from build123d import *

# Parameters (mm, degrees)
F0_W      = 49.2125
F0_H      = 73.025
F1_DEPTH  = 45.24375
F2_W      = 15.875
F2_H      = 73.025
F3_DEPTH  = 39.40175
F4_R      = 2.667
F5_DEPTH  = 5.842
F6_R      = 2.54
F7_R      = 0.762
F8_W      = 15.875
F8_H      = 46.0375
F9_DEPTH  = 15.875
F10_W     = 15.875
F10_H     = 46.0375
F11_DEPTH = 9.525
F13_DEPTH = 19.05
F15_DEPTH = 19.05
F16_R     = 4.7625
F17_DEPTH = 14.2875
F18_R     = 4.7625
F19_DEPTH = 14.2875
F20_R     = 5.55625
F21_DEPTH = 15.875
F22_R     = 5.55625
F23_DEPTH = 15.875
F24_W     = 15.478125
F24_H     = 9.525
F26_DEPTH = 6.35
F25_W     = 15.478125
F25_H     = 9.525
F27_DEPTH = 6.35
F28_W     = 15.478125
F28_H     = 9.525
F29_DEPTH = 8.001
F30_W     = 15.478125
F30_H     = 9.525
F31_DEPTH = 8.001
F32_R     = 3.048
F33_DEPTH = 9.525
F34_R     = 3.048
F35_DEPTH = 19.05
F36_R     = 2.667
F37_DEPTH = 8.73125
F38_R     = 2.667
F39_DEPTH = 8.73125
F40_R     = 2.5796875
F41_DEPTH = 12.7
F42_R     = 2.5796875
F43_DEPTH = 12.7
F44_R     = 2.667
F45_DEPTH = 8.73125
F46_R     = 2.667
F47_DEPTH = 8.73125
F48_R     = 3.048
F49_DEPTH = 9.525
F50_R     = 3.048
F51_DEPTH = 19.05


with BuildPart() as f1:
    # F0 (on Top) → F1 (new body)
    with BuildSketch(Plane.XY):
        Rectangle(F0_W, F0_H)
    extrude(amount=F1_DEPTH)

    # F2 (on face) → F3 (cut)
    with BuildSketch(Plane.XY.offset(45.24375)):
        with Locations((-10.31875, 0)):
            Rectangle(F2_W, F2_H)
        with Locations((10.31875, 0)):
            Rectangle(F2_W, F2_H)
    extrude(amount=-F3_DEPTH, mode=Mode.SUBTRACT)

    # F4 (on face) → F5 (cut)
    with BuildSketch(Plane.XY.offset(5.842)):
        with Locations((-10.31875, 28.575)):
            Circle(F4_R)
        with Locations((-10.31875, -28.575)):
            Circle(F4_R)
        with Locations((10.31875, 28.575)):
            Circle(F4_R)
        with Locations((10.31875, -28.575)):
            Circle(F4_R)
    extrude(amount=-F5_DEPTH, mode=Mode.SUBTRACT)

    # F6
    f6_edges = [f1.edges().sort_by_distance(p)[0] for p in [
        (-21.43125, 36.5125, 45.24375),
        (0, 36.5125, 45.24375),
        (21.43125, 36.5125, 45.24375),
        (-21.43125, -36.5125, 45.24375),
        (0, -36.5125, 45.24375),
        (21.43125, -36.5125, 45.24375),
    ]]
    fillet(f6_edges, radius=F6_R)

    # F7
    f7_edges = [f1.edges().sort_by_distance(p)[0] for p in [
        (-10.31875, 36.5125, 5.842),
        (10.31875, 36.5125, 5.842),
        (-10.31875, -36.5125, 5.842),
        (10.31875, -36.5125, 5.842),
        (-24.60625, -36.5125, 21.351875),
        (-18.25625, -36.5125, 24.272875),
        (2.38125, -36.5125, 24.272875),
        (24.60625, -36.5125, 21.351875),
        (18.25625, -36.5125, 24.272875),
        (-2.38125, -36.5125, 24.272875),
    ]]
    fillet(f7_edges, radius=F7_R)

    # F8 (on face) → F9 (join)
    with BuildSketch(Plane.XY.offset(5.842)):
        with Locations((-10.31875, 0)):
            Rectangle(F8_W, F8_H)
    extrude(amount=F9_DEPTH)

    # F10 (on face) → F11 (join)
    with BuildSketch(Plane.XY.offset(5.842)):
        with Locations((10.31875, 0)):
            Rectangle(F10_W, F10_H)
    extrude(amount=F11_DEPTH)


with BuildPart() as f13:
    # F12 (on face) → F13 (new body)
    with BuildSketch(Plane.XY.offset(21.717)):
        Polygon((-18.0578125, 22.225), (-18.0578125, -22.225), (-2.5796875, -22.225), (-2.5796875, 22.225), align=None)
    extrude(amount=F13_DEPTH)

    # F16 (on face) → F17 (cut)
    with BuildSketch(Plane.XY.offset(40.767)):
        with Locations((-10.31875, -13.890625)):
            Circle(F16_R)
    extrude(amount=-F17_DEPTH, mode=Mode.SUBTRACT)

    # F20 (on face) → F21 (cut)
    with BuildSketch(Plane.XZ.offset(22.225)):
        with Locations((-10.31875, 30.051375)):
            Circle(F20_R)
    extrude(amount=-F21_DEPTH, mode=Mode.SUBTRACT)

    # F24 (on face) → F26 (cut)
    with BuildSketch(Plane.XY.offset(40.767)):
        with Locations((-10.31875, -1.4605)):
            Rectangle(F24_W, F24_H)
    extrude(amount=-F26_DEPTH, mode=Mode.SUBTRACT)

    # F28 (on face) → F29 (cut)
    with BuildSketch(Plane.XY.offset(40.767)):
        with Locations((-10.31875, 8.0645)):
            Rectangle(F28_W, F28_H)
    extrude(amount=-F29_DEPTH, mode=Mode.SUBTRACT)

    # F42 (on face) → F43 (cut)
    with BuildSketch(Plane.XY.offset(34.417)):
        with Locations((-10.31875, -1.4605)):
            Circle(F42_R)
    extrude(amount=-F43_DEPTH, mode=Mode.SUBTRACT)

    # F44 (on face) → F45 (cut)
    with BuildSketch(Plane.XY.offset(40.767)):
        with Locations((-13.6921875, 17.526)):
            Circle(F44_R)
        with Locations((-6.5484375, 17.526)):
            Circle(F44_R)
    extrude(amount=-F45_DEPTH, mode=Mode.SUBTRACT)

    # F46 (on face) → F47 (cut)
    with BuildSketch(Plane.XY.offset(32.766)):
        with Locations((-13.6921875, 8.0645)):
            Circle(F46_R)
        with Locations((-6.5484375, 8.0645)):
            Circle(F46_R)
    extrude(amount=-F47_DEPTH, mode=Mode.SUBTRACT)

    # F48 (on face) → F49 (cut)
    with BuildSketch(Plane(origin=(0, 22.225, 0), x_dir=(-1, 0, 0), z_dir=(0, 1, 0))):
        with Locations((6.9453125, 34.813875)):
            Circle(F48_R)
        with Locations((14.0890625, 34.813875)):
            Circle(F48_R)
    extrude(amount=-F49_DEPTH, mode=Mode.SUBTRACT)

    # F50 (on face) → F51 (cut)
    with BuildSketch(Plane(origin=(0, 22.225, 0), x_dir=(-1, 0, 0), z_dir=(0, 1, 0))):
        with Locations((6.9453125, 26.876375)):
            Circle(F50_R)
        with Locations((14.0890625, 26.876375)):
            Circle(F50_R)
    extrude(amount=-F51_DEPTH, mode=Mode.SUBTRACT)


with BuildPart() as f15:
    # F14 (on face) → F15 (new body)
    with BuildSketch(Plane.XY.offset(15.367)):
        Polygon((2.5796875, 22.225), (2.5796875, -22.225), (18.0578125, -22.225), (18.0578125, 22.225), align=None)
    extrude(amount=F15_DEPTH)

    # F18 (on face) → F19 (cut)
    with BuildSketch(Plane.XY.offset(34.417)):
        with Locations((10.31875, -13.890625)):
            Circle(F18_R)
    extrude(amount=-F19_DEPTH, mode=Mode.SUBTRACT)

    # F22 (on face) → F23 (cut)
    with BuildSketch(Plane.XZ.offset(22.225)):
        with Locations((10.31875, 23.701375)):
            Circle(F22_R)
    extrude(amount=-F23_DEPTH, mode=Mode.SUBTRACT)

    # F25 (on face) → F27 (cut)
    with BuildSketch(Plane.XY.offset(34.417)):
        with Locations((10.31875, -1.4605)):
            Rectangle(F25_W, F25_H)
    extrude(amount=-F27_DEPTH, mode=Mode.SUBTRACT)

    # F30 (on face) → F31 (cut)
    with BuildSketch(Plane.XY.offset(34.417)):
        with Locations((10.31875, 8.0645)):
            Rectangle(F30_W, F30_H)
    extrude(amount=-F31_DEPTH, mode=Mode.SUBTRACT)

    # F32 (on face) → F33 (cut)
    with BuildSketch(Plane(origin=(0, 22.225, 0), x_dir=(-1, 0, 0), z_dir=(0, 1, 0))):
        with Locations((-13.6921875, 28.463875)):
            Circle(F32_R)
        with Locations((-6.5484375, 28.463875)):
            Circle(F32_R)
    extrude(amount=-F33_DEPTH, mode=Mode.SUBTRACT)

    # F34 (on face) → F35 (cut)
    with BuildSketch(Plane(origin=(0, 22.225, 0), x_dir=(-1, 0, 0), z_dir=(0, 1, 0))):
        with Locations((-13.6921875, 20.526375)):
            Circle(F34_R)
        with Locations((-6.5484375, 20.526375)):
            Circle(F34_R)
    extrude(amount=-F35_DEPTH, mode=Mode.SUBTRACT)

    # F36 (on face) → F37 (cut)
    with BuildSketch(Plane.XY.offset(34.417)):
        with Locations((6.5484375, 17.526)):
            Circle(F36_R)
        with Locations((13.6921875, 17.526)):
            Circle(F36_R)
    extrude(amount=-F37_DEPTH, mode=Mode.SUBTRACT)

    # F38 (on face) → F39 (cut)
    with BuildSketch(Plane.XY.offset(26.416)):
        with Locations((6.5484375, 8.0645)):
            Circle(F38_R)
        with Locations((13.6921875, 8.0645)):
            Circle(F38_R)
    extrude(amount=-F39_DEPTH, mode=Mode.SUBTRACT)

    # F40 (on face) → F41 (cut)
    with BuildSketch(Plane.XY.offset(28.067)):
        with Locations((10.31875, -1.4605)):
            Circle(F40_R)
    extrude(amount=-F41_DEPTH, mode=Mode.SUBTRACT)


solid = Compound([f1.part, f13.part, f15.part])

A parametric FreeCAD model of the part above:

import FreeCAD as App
import Part
import Sketcher

V = App.Vector
Q = App.Units.Quantity


def edges_at(feature, points):
    """Names of the edges that pass closest to the given points."""
    edges = feature.Shape.Edges
    near = lambda p: min(range(len(edges)), key=lambda i: edges[i].distToShape(Part.Vertex(*p))[0])
    return sorted({f"Edge{near(p) + 1}" for p in points})


def add_polygon(sketch, points):
    """Adds a closed chain of lines whose ends are joined by coincident constraints."""
    first, n = sketch.GeometryCount, len(points)
    for a, b in zip(points, points[1:] + points[:1]):
        sketch.addGeometry(Part.LineSegment(App.Vector(*a, 0), App.Vector(*b, 0)), False)
    for i in range(n):
        sketch.addConstraint(Sketcher.Constraint("Coincident", first + i, 2, first + (i + 1) % n, 1))

doc = App.newDocument("Part")
params = doc.addObject("Spreadsheet::Sheet", "Params")
for row, (alias, value) in enumerate([
    ("sketch1_width", "1.9375 in"),
    ("sketch1_height", "2.875 in"),
    ("pad1_length", "1.78125 in"),
    ("sketch2_width", "0.625 in"),
    ("sketch2_height", "2.875 in"),
    ("pocket1_length", "39.40175 mm"),
    ("sketch3_diameter", "0.21 in"),
    ("pocket2_length", "0.23 in"),
    ("fillet_radius", "0.1 in"),
    ("fillet2_radius", "0.03 in"),
    ("sketch4_width", "0.625 in"),
    ("sketch4_height", "1.8125 in"),
    ("pad2_length", "0.625 in"),
    ("sketch5_width", "0.625 in"),
    ("sketch5_height", "1.8125 in"),
    ("pad3_length", "0.375 in"),
    ("sketch6_height", "1.75 in"),
    ("sketch6_width", "0.609375 in"),
    ("pad4_length", "0.75 in"),
    ("sketch7_diameter", "0.375 in"),
    ("pocket3_length", "0.5625 in"),
    ("sketch8_diameter", "0.4375 in"),
    ("pocket4_length", "0.625 in"),
    ("sketch9_width", "0.609375 in"),
    ("sketch9_height", "0.375 in"),
    ("pocket5_length", "0.25 in"),
    ("sketch10_width", "0.609375 in"),
    ("sketch10_height", "0.375 in"),
    ("pocket6_length", "0.315 in"),
    ("sketch11_diameter", "0.203125 in"),
    ("pocket7_length", "0.5 in"),
    ("sketch12_diameter", "0.21 in"),
    ("pocket8_length", "0.34375 in"),
    ("sketch13_diameter", "0.21 in"),
    ("pocket9_length", "0.34375 in"),
    ("sketch14_diameter", "0.24 in"),
    ("pocket10_length", "0.375 in"),
    ("sketch15_diameter", "0.24 in"),
    ("pocket11_length", "0.75 in"),
    ("sketch16_height", "1.75 in"),
    ("sketch16_width", "0.609375 in"),
    ("pad5_length", "0.75 in"),
    ("sketch17_diameter", "0.375 in"),
    ("pocket12_length", "0.5625 in"),
    ("sketch18_diameter", "0.4375 in"),
    ("pocket13_length", "0.625 in"),
    ("sketch19_width", "0.609375 in"),
    ("sketch19_height", "0.375 in"),
    ("pocket14_length", "0.25 in"),
    ("sketch20_width", "0.609375 in"),
    ("sketch20_height", "0.375 in"),
    ("pocket15_length", "0.315 in"),
    ("sketch21_diameter", "0.24 in"),
    ("pocket16_length", "0.375 in"),
    ("sketch22_diameter", "0.24 in"),
    ("pocket17_length", "0.75 in"),
    ("sketch23_diameter", "0.21 in"),
    ("pocket18_length", "0.34375 in"),
    ("sketch24_diameter", "0.21 in"),
    ("pocket19_length", "0.34375 in"),
    ("sketch25_diameter", "0.203125 in"),
    ("pocket20_length", "0.5 in"),
], start=1):
    params.set(f"A{row}", alias)
    params.set(f"B{row}", "=" + value)
    params.setAlias(f"B{row}", alias)

body = doc.addObject("PartDesign::Body", "Body")

# Sketch on XY plane
sketch1 = doc.addObject("Sketcher::SketchObject", "Sketch")
body.addObject(sketch1)
sketch1.AttachmentSupport = (doc.XY_Plane, [""])
sketch1.MapMode = "FlatFace"
add_polygon(sketch1, [(-25, 37), (-25, -37), (25, -37), (25, 37)])  # lines 0-3
sketch1.addConstraint([
    Sketcher.Constraint("Vertical", 0),
    Sketcher.Constraint("Horizontal", 1),
    Sketcher.Constraint("Vertical", 2),
    Sketcher.Constraint("Horizontal", 3),
    Sketcher.Constraint("Symmetric", 0, 2, 2, 2, -1, 1),
    Sketcher.Constraint("DistanceX", 1, 1, 1, 2, Q("1.9375 in")),
    Sketcher.Constraint("DistanceY", 0, 2, 0, 1, Q("2.875 in")),
])
sketch1.setExpression("Constraints[9]", "Params.sketch1_width")
sketch1.setExpression("Constraints[10]", "Params.sketch1_height")
pad1 = doc.addObject("PartDesign::Pad", "Pad")
body.addObject(pad1)
pad1.Profile = sketch1
pad1.setExpression("Length", "Params.pad1_length")

# Sketch on XY plane
sketch2 = doc.addObject("Sketcher::SketchObject", "Sketch001")
body.addObject(sketch2)
sketch2.AttachmentSupport = (doc.XY_Plane, [""])
sketch2.MapMode = "FlatFace"
sketch2.AttachmentOffset = App.Placement(V(0, 0, 1.78125 * 25.4), App.Rotation())
add_polygon(sketch2, [(-18, 37), (-18, -37), (-2, -37), (-2, 37)])  # lines 0-3
add_polygon(sketch2, [(2, 37), (2, -37), (18, -37), (18, 37)])  # lines 4-7
sketch2.addConstraint([
    Sketcher.Constraint("Vertical", 0),
    Sketcher.Constraint("Horizontal", 1),
    Sketcher.Constraint("Vertical", 2),
    Sketcher.Constraint("Horizontal", 3),
    Sketcher.Constraint("Vertical", 4),
    Sketcher.Constraint("Horizontal", 5),
    Sketcher.Constraint("Vertical", 6),
    Sketcher.Constraint("Horizontal", 7),
    Sketcher.Constraint("Symmetric", 2, 2, 4, 2, -1, 1),
    Sketcher.Constraint("Symmetric", 0, 2, 6, 2, -1, 1),
    Sketcher.Constraint("Horizontal", 1, 2, 4, 2),
    Sketcher.Constraint("DistanceX", 1, 1, 1, 2, Q("0.625 in")),
    Sketcher.Constraint("DistanceY", 0, 2, 0, 1, Q("2.875 in")),
    Sketcher.Constraint("DistanceX", 0, 2, -1, 1, Q("0.71875 in")),
])
sketch2.setExpression("Constraints[19]", "Params.sketch2_width")
sketch2.setExpression("Constraints[20]", "Params.sketch2_height")
pocket1 = doc.addObject("PartDesign::Pocket", "Pocket")
body.addObject(pocket1)
pocket1.Profile = sketch2
pocket1.setExpression("Length", "Params.pocket1_length")

# Sketch on XY plane
sketch3 = doc.addObject("Sketcher::SketchObject", "Sketch002")
body.addObject(sketch3)
sketch3.AttachmentSupport = (doc.XY_Plane, [""])
sketch3.MapMode = "FlatFace"
sketch3.AttachmentOffset = App.Placement(V(0, 0, 0.23 * 25.4), App.Rotation())
sketch3.addGeometry([
    Part.Circle(V(-10.3, 28.6, 0), V(0, 0, 1), 2.7),
    Part.Circle(V(-10.3, -28.6, 0), V(0, 0, 1), 2.7),
    Part.Circle(V(10.3, 28.6, 0), V(0, 0, 1), 2.7),
    Part.Circle(V(10.3, -28.6, 0), V(0, 0, 1), 2.7),
], False)
sketch3.addConstraint([
    Sketcher.Constraint("Equal", 0, 1),
    Sketcher.Constraint("Equal", 1, 2),
    Sketcher.Constraint("Equal", 2, 3),
    Sketcher.Constraint("Symmetric", 1, 3, 2, 3, -1, 1),
    Sketcher.Constraint("Symmetric", 0, 3, 3, 3, -1, 1),
    Sketcher.Constraint("Symmetric", 0, 3, 2, 3, -2),
    Sketcher.Constraint("Diameter", 0, Q("0.21 in")),
    Sketcher.Constraint("DistanceY", 1, 3, 0, 3, Q("2.25 in")),
    Sketcher.Constraint("DistanceX", 0, 3, -1, 1, Q("0.40625 in")),
])
sketch3.setExpression("Constraints[6]", "Params.sketch3_diameter")
pocket2 = doc.addObject("PartDesign::Pocket", "Pocket001")
body.addObject(pocket2)
pocket2.Profile = sketch3
pocket2.setExpression("Length", "Params.pocket2_length")
doc.recompute()

fillet = doc.addObject("PartDesign::Fillet", "Fillet")
body.addObject(fillet)
fillet.Base = (pocket2, edges_at(pocket2, [
    (-21.431, 36.513, 45.244),
    (0, 36.513, 45.244),
    (21.431, 36.513, 45.244),
    (-21.431, -36.513, 45.244),
    (0, -36.513, 45.244),
    (21.431, -36.513, 45.244),
]))
fillet.setExpression("Radius", "Params.fillet_radius")
doc.recompute()

fillet2 = doc.addObject("PartDesign::Fillet", "Fillet001")
body.addObject(fillet2)
fillet2.Base = (fillet, edges_at(fillet, [
    (-10.319, 36.513, 5.842),
    (10.319, 36.513, 5.842),
    (-10.319, -36.513, 5.842),
    (10.319, -36.513, 5.842),
    (-24.606, -36.513, 21.352),
    (-18.256, -36.513, 24.273),
    (2.381, -36.513, 24.273),
    (24.606, -36.513, 21.352),
    (18.256, -36.513, 24.273),
    (-2.381, -36.513, 24.273),
]))
fillet2.setExpression("Radius", "Params.fillet2_radius")

# Sketch on XY plane
sketch4 = doc.addObject("Sketcher::SketchObject", "Sketch003")
body.addObject(sketch4)
sketch4.AttachmentSupport = (doc.XY_Plane, [""])
sketch4.MapMode = "FlatFace"
sketch4.AttachmentOffset = App.Placement(V(0, 0, 0.23 * 25.4), App.Rotation())
add_polygon(sketch4, [(-18, 23), (-18, -23), (-2, -23), (-2, 23)])  # lines 0-3
sketch4.addConstraint([
    Sketcher.Constraint("Vertical", 0),
    Sketcher.Constraint("Horizontal", 1),
    Sketcher.Constraint("Vertical", 2),
    Sketcher.Constraint("Horizontal", 3),
    Sketcher.Constraint("DistanceX", 1, 1, 1, 2, Q("0.625 in")),
    Sketcher.Constraint("DistanceY", 0, 2, 0, 1, Q("1.8125 in")),
    Sketcher.Constraint("DistanceX", 0, 2, -1, 1, Q("0.71875 in")),
    Sketcher.Constraint("DistanceY", 0, 2, -1, 1, Q("0.90625 in")),
])
sketch4.setExpression("Constraints[8]", "Params.sketch4_width")
sketch4.setExpression("Constraints[9]", "Params.sketch4_height")
pad2 = doc.addObject("PartDesign::Pad", "Pad001")
body.addObject(pad2)
pad2.Profile = sketch4
pad2.setExpression("Length", "Params.pad2_length")

# Sketch on XY plane
sketch5 = doc.addObject("Sketcher::SketchObject", "Sketch004")
body.addObject(sketch5)
sketch5.AttachmentSupport = (doc.XY_Plane, [""])
sketch5.MapMode = "FlatFace"
sketch5.AttachmentOffset = App.Placement(V(0, 0, 0.23 * 25.4), App.Rotation())
add_polygon(sketch5, [(2, 23), (2, -23), (18, -23), (18, 23)])  # lines 0-3
sketch5.addConstraint([
    Sketcher.Constraint("Vertical", 0),
    Sketcher.Constraint("Horizontal", 1),
    Sketcher.Constraint("Vertical", 2),
    Sketcher.Constraint("Horizontal", 3),
    Sketcher.Constraint("DistanceX", 1, 1, 1, 2, Q("0.625 in")),
    Sketcher.Constraint("DistanceY", 0, 2, 0, 1, Q("1.8125 in")),
    Sketcher.Constraint("DistanceX", -1, 1, 0, 2, Q("0.09375 in")),
    Sketcher.Constraint("DistanceY", 0, 2, -1, 1, Q("0.90625 in")),
])
sketch5.setExpression("Constraints[8]", "Params.sketch5_width")
sketch5.setExpression("Constraints[9]", "Params.sketch5_height")
pad3 = doc.addObject("PartDesign::Pad", "Pad002")
body.addObject(pad3)
pad3.Profile = sketch5
pad3.setExpression("Length", "Params.pad3_length")
body2 = doc.addObject("PartDesign::Body", "Body001")

# Sketch on XY plane
sketch6 = doc.addObject("Sketcher::SketchObject", "Sketch005")
body2.addObject(sketch6)
sketch6.AttachmentSupport = (doc.getObject("XY_Plane001"), [""])
sketch6.MapMode = "FlatFace"
sketch6.AttachmentOffset = App.Placement(V(0, 0, 0.855 * 25.4), App.Rotation())
add_polygon(sketch6, [(-18, 22), (-18, -22), (-3, -22), (-3, 22)])  # lines 0-3
sketch6.addConstraint([
    Sketcher.Constraint("Vertical", 0),
    Sketcher.Constraint("Horizontal", 1),
    Sketcher.Constraint("Vertical", 2),
    Sketcher.Constraint("Horizontal", 3),
    Sketcher.Constraint("DistanceY", 0, 2, 0, 1, Q("1.75 in")),
    Sketcher.Constraint("DistanceX", 1, 1, 1, 2, Q("0.609375 in")),
    Sketcher.Constraint("DistanceY", 0, 2, -1, 1, Q("0.875 in")),
    Sketcher.Constraint("DistanceX", 0, 2, -1, 1, 18.057813),
])
sketch6.setExpression("Constraints[8]", "Params.sketch6_height")
sketch6.setExpression("Constraints[9]", "Params.sketch6_width")
pad4 = doc.addObject("PartDesign::Pad", "Pad003")
body2.addObject(pad4)
pad4.Profile = sketch6
pad4.setExpression("Length", "Params.pad4_length")

# Sketch on XY plane
sketch7 = doc.addObject("Sketcher::SketchObject", "Sketch006")
body2.addObject(sketch7)
sketch7.AttachmentSupport = (doc.getObject("XY_Plane001"), [""])
sketch7.MapMode = "FlatFace"
sketch7.AttachmentOffset = App.Placement(V(0, 0, 1.605 * 25.4), App.Rotation())
sketch7.addGeometry(Part.Circle(V(-10.3, -13.9, 0), V(0, 0, 1), 4.8), False)
sketch7.addConstraint([
    Sketcher.Constraint("Diameter", 0, Q("0.375 in")),
    Sketcher.Constraint("DistanceX", 0, 3, -1, 1, Q("0.40625 in")),
    Sketcher.Constraint("DistanceY", 0, 3, -1, 1, Q("0.546875 in")),
])
sketch7.setExpression("Constraints[0]", "Params.sketch7_diameter")
pocket3 = doc.addObject("PartDesign::Pocket", "Pocket002")
body2.addObject(pocket3)
pocket3.Profile = sketch7
pocket3.setExpression("Length", "Params.pocket3_length")

# Sketch on XZ plane
sketch8 = doc.addObject("Sketcher::SketchObject", "Sketch007")
body2.addObject(sketch8)
sketch8.AttachmentSupport = (doc.getObject("XZ_Plane001"), [""])
sketch8.MapMode = "FlatFace"
sketch8.AttachmentOffset = App.Placement(V(0, 0, 0.875 * 25.4), App.Rotation())
sketch8.addGeometry(Part.Circle(V(-10, 30, 0), V(0, 0, 1), 6), False)
sketch8.addConstraint([
    Sketcher.Constraint("Diameter", 0, Q("0.4375 in")),
    Sketcher.Constraint("DistanceX", 0, 3, -1, 1, Q("0.40625 in")),
    Sketcher.Constraint("DistanceY", -1, 1, 0, 3, 30.051375),
])
sketch8.setExpression("Constraints[0]", "Params.sketch8_diameter")
pocket4 = doc.addObject("PartDesign::Pocket", "Pocket003")
body2.addObject(pocket4)
pocket4.Profile = sketch8
pocket4.setExpression("Length", "Params.pocket4_length")

# Sketch on XY plane
sketch9 = doc.addObject("Sketcher::SketchObject", "Sketch008")
body2.addObject(sketch9)
sketch9.AttachmentSupport = (doc.getObject("XY_Plane001"), [""])
sketch9.MapMode = "FlatFace"
sketch9.AttachmentOffset = App.Placement(V(0, 0, 1.605 * 25.4), App.Rotation())
add_polygon(sketch9, [(-18, 3), (-18, -6), (-3, -6), (-3, 3)])  # lines 0-3
sketch9.addConstraint([
    Sketcher.Constraint("Vertical", 0),
    Sketcher.Constraint("Horizontal", 1),
    Sketcher.Constraint("Vertical", 2),
    Sketcher.Constraint("Horizontal", 3),
    Sketcher.Constraint("DistanceX", 1, 1, 1, 2, Q("0.609375 in")),
    Sketcher.Constraint("DistanceY", 0, 2, 0, 1, Q("0.375 in")),
    Sketcher.Constraint("DistanceY", -1, 1, 2, 2, Q("0.13 in")),
    Sketcher.Constraint("DistanceX", 0, 2, -1, 1, 18.057813),
])
sketch9.setExpression("Constraints[8]", "Params.sketch9_width")
sketch9.setExpression("Constraints[9]", "Params.sketch9_height")
pocket5 = doc.addObject("PartDesign::Pocket", "Pocket004")
body2.addObject(pocket5)
pocket5.Profile = sketch9
pocket5.setExpression("Length", "Params.pocket5_length")

# Sketch on XY plane
sketch10 = doc.addObject("Sketcher::SketchObject", "Sketch009")
body2.addObject(sketch10)
sketch10.AttachmentSupport = (doc.getObject("XY_Plane001"), [""])
sketch10.MapMode = "FlatFace"
sketch10.AttachmentOffset = App.Placement(V(0, 0, 1.605 * 25.4), App.Rotation())
add_polygon(sketch10, [(-18, 13), (-18, 3), (-3, 3), (-3, 13)])  # lines 0-3
sketch10.addConstraint([
    Sketcher.Constraint("Vertical", 0),
    Sketcher.Constraint("Horizontal", 1),
    Sketcher.Constraint("Vertical", 2),
    Sketcher.Constraint("Horizontal", 3),
    Sketcher.Constraint("DistanceX", 1, 1, 1, 2, Q("0.609375 in")),
    Sketcher.Constraint("DistanceY", 0, 2, 0, 1, Q("0.375 in")),
    Sketcher.Constraint("DistanceY", -1, 1, 0, 2, Q("0.13 in")),
    Sketcher.Constraint("DistanceX", 0, 2, -1, 1, 18.057813),
])
sketch10.setExpression("Constraints[8]", "Params.sketch10_width")
sketch10.setExpression("Constraints[9]", "Params.sketch10_height")
pocket6 = doc.addObject("PartDesign::Pocket", "Pocket005")
body2.addObject(pocket6)
pocket6.Profile = sketch10
pocket6.setExpression("Length", "Params.pocket6_length")

# Sketch on XY plane
sketch11 = doc.addObject("Sketcher::SketchObject", "Sketch010")
body2.addObject(sketch11)
sketch11.AttachmentSupport = (doc.getObject("XY_Plane001"), [""])
sketch11.MapMode = "FlatFace"
sketch11.AttachmentOffset = App.Placement(V(0, 0, 1.355 * 25.4), App.Rotation())
sketch11.addGeometry(Part.Circle(V(-10.3, -1.5, 0), V(0, 0, 1), 2.6), False)
sketch11.addConstraint([
    Sketcher.Constraint("Diameter", 0, Q("0.203125 in")),
    Sketcher.Constraint("DistanceX", 0, 3, -1, 1, Q("0.40625 in")),
    Sketcher.Constraint("DistanceY", 0, 3, -1, 1, Q("0.0575 in")),
])
sketch11.setExpression("Constraints[0]", "Params.sketch11_diameter")
pocket7 = doc.addObject("PartDesign::Pocket", "Pocket006")
body2.addObject(pocket7)
pocket7.Profile = sketch11
pocket7.setExpression("Length", "Params.pocket7_length")

# Sketch on XY plane
sketch12 = doc.addObject("Sketcher::SketchObject", "Sketch011")
body2.addObject(sketch12)
sketch12.AttachmentSupport = (doc.getObject("XY_Plane001"), [""])
sketch12.MapMode = "FlatFace"
sketch12.AttachmentOffset = App.Placement(V(0, 0, 1.605 * 25.4), App.Rotation())
sketch12.addGeometry([
    Part.Circle(V(-13.7, 17.5, 0), V(0, 0, 1), 2.7),
    Part.Circle(V(-6.5, 17.5, 0), V(0, 0, 1), 2.7),
], False)
sketch12.addConstraint([
    Sketcher.Constraint("Equal", 0, 1),
    Sketcher.Constraint("Horizontal", 0, 3, 1, 3),
    Sketcher.Constraint("Diameter", 0, Q("0.21 in")),
    Sketcher.Constraint("DistanceY", -1, 1, 0, 3, Q("0.69 in")),
    Sketcher.Constraint("DistanceX", 0, 3, 1, 3, Q("0.28125 in")),
    Sketcher.Constraint("DistanceX", 0, 3, -1, 1, 13.692187),
])
sketch12.setExpression("Constraints[2]", "Params.sketch12_diameter")
pocket8 = doc.addObject("PartDesign::Pocket", "Pocket007")
body2.addObject(pocket8)
pocket8.Profile = sketch12
pocket8.setExpression("Length", "Params.pocket8_length")

# Sketch on XY plane
sketch13 = doc.addObject("Sketcher::SketchObject", "Sketch012")
body2.addObject(sketch13)
sketch13.AttachmentSupport = (doc.getObject("XY_Plane001"), [""])
sketch13.MapMode = "FlatFace"
sketch13.AttachmentOffset = App.Placement(V(0, 0, 1.29 * 25.4), App.Rotation())
sketch13.addGeometry([
    Part.Circle(V(-13.7, 8.1, 0), V(0, 0, 1), 2.7),
    Part.Circle(V(-6.5, 8.1, 0), V(0, 0, 1), 2.7),
], False)
sketch13.addConstraint([
    Sketcher.Constraint("Equal", 0, 1),
    Sketcher.Constraint("Horizontal", 0, 3, 1, 3),
    Sketcher.Constraint("Diameter", 0, Q("0.21 in")),
    Sketcher.Constraint("DistanceX", 0, 3, 1, 3, Q("0.28125 in")),
    Sketcher.Constraint("DistanceY", -1, 1, 0, 3, Q("0.3175 in")),
    Sketcher.Constraint("DistanceX", 0, 3, -1, 1, 13.692187),
])
sketch13.setExpression("Constraints[2]", "Params.sketch13_diameter")
pocket9 = doc.addObject("PartDesign::Pocket", "Pocket008")
body2.addObject(pocket9)
pocket9.Profile = sketch13
pocket9.setExpression("Length", "Params.pocket9_length")

# Sketch on XZ plane
sketch14 = doc.addObject("Sketcher::SketchObject", "Sketch013")
body2.addObject(sketch14)
sketch14.AttachmentSupport = (doc.getObject("XZ_Plane001"), [""])
sketch14.MapMode = "FlatFace"
sketch14.AttachmentOffset = App.Placement(V(0, 0, -0.875 * 25.4), App.Rotation())
sketch14.addGeometry([
    Part.Circle(V(-6.9, 34.8, 0), V(0, 0, 1), 3),
    Part.Circle(V(-14.1, 34.8, 0), V(0, 0, 1), 3),
], False)
sketch14.addConstraint([
    Sketcher.Constraint("Equal", 0, 1),
    Sketcher.Constraint("Horizontal", 0, 3, 1, 3),
    Sketcher.Constraint("Diameter", 0, Q("0.24 in")),
    Sketcher.Constraint("DistanceX", 1, 3, 0, 3, Q("0.28125 in")),
    Sketcher.Constraint("DistanceX", 0, 3, -1, 1, 6.945312),
    Sketcher.Constraint("DistanceY", -1, 1, 0, 3, 34.813875),
])
sketch14.setExpression("Constraints[2]", "Params.sketch14_diameter")
pocket10 = doc.addObject("PartDesign::Pocket", "Pocket009")
body2.addObject(pocket10)
pocket10.Profile = sketch14
pocket10.setExpression("Length", "Params.pocket10_length")
pocket10.Reversed = True

# Sketch on XZ plane
sketch15 = doc.addObject("Sketcher::SketchObject", "Sketch014")
body2.addObject(sketch15)
sketch15.AttachmentSupport = (doc.getObject("XZ_Plane001"), [""])
sketch15.MapMode = "FlatFace"
sketch15.AttachmentOffset = App.Placement(V(0, 0, -0.875 * 25.4), App.Rotation())
sketch15.addGeometry([
    Part.Circle(V(-6.9, 26.9, 0), V(0, 0, 1), 3),
    Part.Circle(V(-14.1, 26.9, 0), V(0, 0, 1), 3),
], False)
sketch15.addConstraint([
    Sketcher.Constraint("Equal", 0, 1),
    Sketcher.Constraint("Horizontal", 0, 3, 1, 3),
    Sketcher.Constraint("Diameter", 0, Q("0.24 in")),
    Sketcher.Constraint("DistanceX", 1, 3, 0, 3, Q("0.28125 in")),
    Sketcher.Constraint("DistanceX", 0, 3, -1, 1, 6.945312),
    Sketcher.Constraint("DistanceY", -1, 1, 0, 3, 26.876375),
])
sketch15.setExpression("Constraints[2]", "Params.sketch15_diameter")
pocket11 = doc.addObject("PartDesign::Pocket", "Pocket010")
body2.addObject(pocket11)
pocket11.Profile = sketch15
pocket11.setExpression("Length", "Params.pocket11_length")
pocket11.Reversed = True
body3 = doc.addObject("PartDesign::Body", "Body002")

# Sketch on XY plane
sketch16 = doc.addObject("Sketcher::SketchObject", "Sketch015")
body3.addObject(sketch16)
sketch16.AttachmentSupport = (doc.getObject("XY_Plane002"), [""])
sketch16.MapMode = "FlatFace"
sketch16.AttachmentOffset = App.Placement(V(0, 0, 0.605 * 25.4), App.Rotation())
add_polygon(sketch16, [(3, 22), (3, -22), (18, -22), (18, 22)])  # lines 0-3
sketch16.addConstraint([
    Sketcher.Constraint("Vertical", 0),
    Sketcher.Constraint("Horizontal", 1),
    Sketcher.Constraint("Vertical", 2),
    Sketcher.Constraint("Horizontal", 3),
    Sketcher.Constraint("DistanceY", 0, 2, 0, 1, Q("1.75 in")),
    Sketcher.Constraint("DistanceX", 1, 1, 1, 2, Q("0.609375 in")),
    Sketcher.Constraint("DistanceY", 0, 2, -1, 1, Q("0.875 in")),
    Sketcher.Constraint("DistanceX", -1, 1, 0, 2, 2.579687),
])
sketch16.setExpression("Constraints[8]", "Params.sketch16_height")
sketch16.setExpression("Constraints[9]", "Params.sketch16_width")
pad5 = doc.addObject("PartDesign::Pad", "Pad004")
body3.addObject(pad5)
pad5.Profile = sketch16
pad5.setExpression("Length", "Params.pad5_length")

# Sketch on XY plane
sketch17 = doc.addObject("Sketcher::SketchObject", "Sketch016")
body3.addObject(sketch17)
sketch17.AttachmentSupport = (doc.getObject("XY_Plane002"), [""])
sketch17.MapMode = "FlatFace"
sketch17.AttachmentOffset = App.Placement(V(0, 0, 1.355 * 25.4), App.Rotation())
sketch17.addGeometry(Part.Circle(V(10.3, -13.9, 0), V(0, 0, 1), 4.8), False)
sketch17.addConstraint([
    Sketcher.Constraint("Diameter", 0, Q("0.375 in")),
    Sketcher.Constraint("DistanceX", -1, 1, 0, 3, Q("0.40625 in")),
    Sketcher.Constraint("DistanceY", 0, 3, -1, 1, Q("0.546875 in")),
])
sketch17.setExpression("Constraints[0]", "Params.sketch17_diameter")
pocket12 = doc.addObject("PartDesign::Pocket", "Pocket011")
body3.addObject(pocket12)
pocket12.Profile = sketch17
pocket12.setExpression("Length", "Params.pocket12_length")

# Sketch on XZ plane
sketch18 = doc.addObject("Sketcher::SketchObject", "Sketch017")
body3.addObject(sketch18)
sketch18.AttachmentSupport = (doc.getObject("XZ_Plane002"), [""])
sketch18.MapMode = "FlatFace"
sketch18.AttachmentOffset = App.Placement(V(0, 0, 0.875 * 25.4), App.Rotation())
sketch18.addGeometry(Part.Circle(V(10, 24, 0), V(0, 0, 1), 6), False)
sketch18.addConstraint([
    Sketcher.Constraint("Diameter", 0, Q("0.4375 in")),
    Sketcher.Constraint("DistanceX", -1, 1, 0, 3, Q("0.40625 in")),
    Sketcher.Constraint("DistanceY", -1, 1, 0, 3, 23.701375),
])
sketch18.setExpression("Constraints[0]", "Params.sketch18_diameter")
pocket13 = doc.addObject("PartDesign::Pocket", "Pocket012")
body3.addObject(pocket13)
pocket13.Profile = sketch18
pocket13.setExpression("Length", "Params.pocket13_length")

# Sketch on XY plane
sketch19 = doc.addObject("Sketcher::SketchObject", "Sketch018")
body3.addObject(sketch19)
sketch19.AttachmentSupport = (doc.getObject("XY_Plane002"), [""])
sketch19.MapMode = "FlatFace"
sketch19.AttachmentOffset = App.Placement(V(0, 0, 1.355 * 25.4), App.Rotation())
add_polygon(sketch19, [(3, 3), (3, -6), (18, -6), (18, 3)])  # lines 0-3
sketch19.addConstraint([
    Sketcher.Constraint("Vertical", 0),
    Sketcher.Constraint("Horizontal", 1),
    Sketcher.Constraint("Vertical", 2),
    Sketcher.Constraint("Horizontal", 3),
    Sketcher.Constraint("DistanceX", 1, 1, 1, 2, Q("0.609375 in")),
    Sketcher.Constraint("DistanceY", 0, 2, 0, 1, Q("0.375 in")),
    Sketcher.Constraint("DistanceY", -1, 1, 2, 2, Q("0.13 in")),
    Sketcher.Constraint("DistanceX", -1, 1, 0, 2, 2.579687),
])
sketch19.setExpression("Constraints[8]", "Params.sketch19_width")
sketch19.setExpression("Constraints[9]", "Params.sketch19_height")
pocket14 = doc.addObject("PartDesign::Pocket", "Pocket013")
body3.addObject(pocket14)
pocket14.Profile = sketch19
pocket14.setExpression("Length", "Params.pocket14_length")

# Sketch on XY plane
sketch20 = doc.addObject("Sketcher::SketchObject", "Sketch019")
body3.addObject(sketch20)
sketch20.AttachmentSupport = (doc.getObject("XY_Plane002"), [""])
sketch20.MapMode = "FlatFace"
sketch20.AttachmentOffset = App.Placement(V(0, 0, 1.355 * 25.4), App.Rotation())
add_polygon(sketch20, [(3, 13), (3, 3), (18, 3), (18, 13)])  # lines 0-3
sketch20.addConstraint([
    Sketcher.Constraint("Vertical", 0),
    Sketcher.Constraint("Horizontal", 1),
    Sketcher.Constraint("Vertical", 2),
    Sketcher.Constraint("Horizontal", 3),
    Sketcher.Constraint("DistanceX", 1, 1, 1, 2, Q("0.609375 in")),
    Sketcher.Constraint("DistanceY", 0, 2, 0, 1, Q("0.375 in")),
    Sketcher.Constraint("DistanceY", -1, 1, 0, 2, Q("0.13 in")),
    Sketcher.Constraint("DistanceX", -1, 1, 0, 2, 2.579687),
])
sketch20.setExpression("Constraints[8]", "Params.sketch20_width")
sketch20.setExpression("Constraints[9]", "Params.sketch20_height")
pocket15 = doc.addObject("PartDesign::Pocket", "Pocket014")
body3.addObject(pocket15)
pocket15.Profile = sketch20
pocket15.setExpression("Length", "Params.pocket15_length")

# Sketch on XZ plane
sketch21 = doc.addObject("Sketcher::SketchObject", "Sketch020")
body3.addObject(sketch21)
sketch21.AttachmentSupport = (doc.getObject("XZ_Plane002"), [""])
sketch21.MapMode = "FlatFace"
sketch21.AttachmentOffset = App.Placement(V(0, 0, -0.875 * 25.4), App.Rotation())
sketch21.addGeometry([
    Part.Circle(V(13.7, 28.5, 0), V(0, 0, 1), 3),
    Part.Circle(V(6.5, 28.5, 0), V(0, 0, 1), 3),
], False)
sketch21.addConstraint([
    Sketcher.Constraint("Equal", 0, 1),
    Sketcher.Constraint("Horizontal", 0, 3, 1, 3),
    Sketcher.Constraint("Diameter", 0, Q("0.24 in")),
    Sketcher.Constraint("DistanceX", 1, 3, 0, 3, Q("0.28125 in")),
    Sketcher.Constraint("DistanceX", -1, 1, 0, 3, 13.692187),
    Sketcher.Constraint("DistanceY", -1, 1, 0, 3, 28.463875),
])
sketch21.setExpression("Constraints[2]", "Params.sketch21_diameter")
pocket16 = doc.addObject("PartDesign::Pocket", "Pocket015")
body3.addObject(pocket16)
pocket16.Profile = sketch21
pocket16.setExpression("Length", "Params.pocket16_length")
pocket16.Reversed = True

# Sketch on XZ plane
sketch22 = doc.addObject("Sketcher::SketchObject", "Sketch021")
body3.addObject(sketch22)
sketch22.AttachmentSupport = (doc.getObject("XZ_Plane002"), [""])
sketch22.MapMode = "FlatFace"
sketch22.AttachmentOffset = App.Placement(V(0, 0, -0.875 * 25.4), App.Rotation())
sketch22.addGeometry([
    Part.Circle(V(13.7, 20.5, 0), V(0, 0, 1), 3),
    Part.Circle(V(6.5, 20.5, 0), V(0, 0, 1), 3),
], False)
sketch22.addConstraint([
    Sketcher.Constraint("Equal", 0, 1),
    Sketcher.Constraint("Horizontal", 0, 3, 1, 3),
    Sketcher.Constraint("Diameter", 0, Q("0.24 in")),
    Sketcher.Constraint("DistanceX", 1, 3, 0, 3, Q("0.28125 in")),
    Sketcher.Constraint("DistanceX", -1, 1, 0, 3, 13.692187),
    Sketcher.Constraint("DistanceY", -1, 1, 0, 3, 20.526375),
])
sketch22.setExpression("Constraints[2]", "Params.sketch22_diameter")
pocket17 = doc.addObject("PartDesign::Pocket", "Pocket016")
body3.addObject(pocket17)
pocket17.Profile = sketch22
pocket17.setExpression("Length", "Params.pocket17_length")
pocket17.Reversed = True

# Sketch on XY plane
sketch23 = doc.addObject("Sketcher::SketchObject", "Sketch022")
body3.addObject(sketch23)
sketch23.AttachmentSupport = (doc.getObject("XY_Plane002"), [""])
sketch23.MapMode = "FlatFace"
sketch23.AttachmentOffset = App.Placement(V(0, 0, 1.355 * 25.4), App.Rotation())
sketch23.addGeometry([
    Part.Circle(V(6.5, 17.5, 0), V(0, 0, 1), 2.7),
    Part.Circle(V(13.7, 17.5, 0), V(0, 0, 1), 2.7),
], False)
sketch23.addConstraint([
    Sketcher.Constraint("Equal", 0, 1),
    Sketcher.Constraint("Horizontal", 0, 3, 1, 3),
    Sketcher.Constraint("Diameter", 0, Q("0.21 in")),
    Sketcher.Constraint("DistanceY", -1, 1, 0, 3, Q("0.69 in")),
    Sketcher.Constraint("DistanceX", 0, 3, 1, 3, Q("0.28125 in")),
    Sketcher.Constraint("DistanceX", -1, 1, 0, 3, 6.548438),
])
sketch23.setExpression("Constraints[2]", "Params.sketch23_diameter")
pocket18 = doc.addObject("PartDesign::Pocket", "Pocket017")
body3.addObject(pocket18)
pocket18.Profile = sketch23
pocket18.setExpression("Length", "Params.pocket18_length")

# Sketch on XY plane
sketch24 = doc.addObject("Sketcher::SketchObject", "Sketch023")
body3.addObject(sketch24)
sketch24.AttachmentSupport = (doc.getObject("XY_Plane002"), [""])
sketch24.MapMode = "FlatFace"
sketch24.AttachmentOffset = App.Placement(V(0, 0, 1.04 * 25.4), App.Rotation())
sketch24.addGeometry([
    Part.Circle(V(6.5, 8.1, 0), V(0, 0, 1), 2.7),
    Part.Circle(V(13.7, 8.1, 0), V(0, 0, 1), 2.7),
], False)
sketch24.addConstraint([
    Sketcher.Constraint("Equal", 0, 1),
    Sketcher.Constraint("Horizontal", 0, 3, 1, 3),
    Sketcher.Constraint("Diameter", 0, Q("0.21 in")),
    Sketcher.Constraint("DistanceX", 0, 3, 1, 3, Q("0.28125 in")),
    Sketcher.Constraint("DistanceY", -1, 1, 0, 3, Q("0.3175 in")),
    Sketcher.Constraint("DistanceX", -1, 1, 0, 3, 6.548438),
])
sketch24.setExpression("Constraints[2]", "Params.sketch24_diameter")
pocket19 = doc.addObject("PartDesign::Pocket", "Pocket018")
body3.addObject(pocket19)
pocket19.Profile = sketch24
pocket19.setExpression("Length", "Params.pocket19_length")

# Sketch on XY plane
sketch25 = doc.addObject("Sketcher::SketchObject", "Sketch024")
body3.addObject(sketch25)
sketch25.AttachmentSupport = (doc.getObject("XY_Plane002"), [""])
sketch25.MapMode = "FlatFace"
sketch25.AttachmentOffset = App.Placement(V(0, 0, 1.105 * 25.4), App.Rotation())
sketch25.addGeometry(Part.Circle(V(10.3, -1.5, 0), V(0, 0, 1), 2.6), False)
sketch25.addConstraint([
    Sketcher.Constraint("Diameter", 0, Q("0.203125 in")),
    Sketcher.Constraint("DistanceX", -1, 1, 0, 3, Q("0.40625 in")),
    Sketcher.Constraint("DistanceY", 0, 3, -1, 1, Q("0.0575 in")),
])
sketch25.setExpression("Constraints[0]", "Params.sketch25_diameter")
pocket20 = doc.addObject("PartDesign::Pocket", "Pocket019")
body3.addObject(pocket20)
pocket20.Profile = sketch25
pocket20.setExpression("Length", "Params.pocket20_length")

doc.recompute()
